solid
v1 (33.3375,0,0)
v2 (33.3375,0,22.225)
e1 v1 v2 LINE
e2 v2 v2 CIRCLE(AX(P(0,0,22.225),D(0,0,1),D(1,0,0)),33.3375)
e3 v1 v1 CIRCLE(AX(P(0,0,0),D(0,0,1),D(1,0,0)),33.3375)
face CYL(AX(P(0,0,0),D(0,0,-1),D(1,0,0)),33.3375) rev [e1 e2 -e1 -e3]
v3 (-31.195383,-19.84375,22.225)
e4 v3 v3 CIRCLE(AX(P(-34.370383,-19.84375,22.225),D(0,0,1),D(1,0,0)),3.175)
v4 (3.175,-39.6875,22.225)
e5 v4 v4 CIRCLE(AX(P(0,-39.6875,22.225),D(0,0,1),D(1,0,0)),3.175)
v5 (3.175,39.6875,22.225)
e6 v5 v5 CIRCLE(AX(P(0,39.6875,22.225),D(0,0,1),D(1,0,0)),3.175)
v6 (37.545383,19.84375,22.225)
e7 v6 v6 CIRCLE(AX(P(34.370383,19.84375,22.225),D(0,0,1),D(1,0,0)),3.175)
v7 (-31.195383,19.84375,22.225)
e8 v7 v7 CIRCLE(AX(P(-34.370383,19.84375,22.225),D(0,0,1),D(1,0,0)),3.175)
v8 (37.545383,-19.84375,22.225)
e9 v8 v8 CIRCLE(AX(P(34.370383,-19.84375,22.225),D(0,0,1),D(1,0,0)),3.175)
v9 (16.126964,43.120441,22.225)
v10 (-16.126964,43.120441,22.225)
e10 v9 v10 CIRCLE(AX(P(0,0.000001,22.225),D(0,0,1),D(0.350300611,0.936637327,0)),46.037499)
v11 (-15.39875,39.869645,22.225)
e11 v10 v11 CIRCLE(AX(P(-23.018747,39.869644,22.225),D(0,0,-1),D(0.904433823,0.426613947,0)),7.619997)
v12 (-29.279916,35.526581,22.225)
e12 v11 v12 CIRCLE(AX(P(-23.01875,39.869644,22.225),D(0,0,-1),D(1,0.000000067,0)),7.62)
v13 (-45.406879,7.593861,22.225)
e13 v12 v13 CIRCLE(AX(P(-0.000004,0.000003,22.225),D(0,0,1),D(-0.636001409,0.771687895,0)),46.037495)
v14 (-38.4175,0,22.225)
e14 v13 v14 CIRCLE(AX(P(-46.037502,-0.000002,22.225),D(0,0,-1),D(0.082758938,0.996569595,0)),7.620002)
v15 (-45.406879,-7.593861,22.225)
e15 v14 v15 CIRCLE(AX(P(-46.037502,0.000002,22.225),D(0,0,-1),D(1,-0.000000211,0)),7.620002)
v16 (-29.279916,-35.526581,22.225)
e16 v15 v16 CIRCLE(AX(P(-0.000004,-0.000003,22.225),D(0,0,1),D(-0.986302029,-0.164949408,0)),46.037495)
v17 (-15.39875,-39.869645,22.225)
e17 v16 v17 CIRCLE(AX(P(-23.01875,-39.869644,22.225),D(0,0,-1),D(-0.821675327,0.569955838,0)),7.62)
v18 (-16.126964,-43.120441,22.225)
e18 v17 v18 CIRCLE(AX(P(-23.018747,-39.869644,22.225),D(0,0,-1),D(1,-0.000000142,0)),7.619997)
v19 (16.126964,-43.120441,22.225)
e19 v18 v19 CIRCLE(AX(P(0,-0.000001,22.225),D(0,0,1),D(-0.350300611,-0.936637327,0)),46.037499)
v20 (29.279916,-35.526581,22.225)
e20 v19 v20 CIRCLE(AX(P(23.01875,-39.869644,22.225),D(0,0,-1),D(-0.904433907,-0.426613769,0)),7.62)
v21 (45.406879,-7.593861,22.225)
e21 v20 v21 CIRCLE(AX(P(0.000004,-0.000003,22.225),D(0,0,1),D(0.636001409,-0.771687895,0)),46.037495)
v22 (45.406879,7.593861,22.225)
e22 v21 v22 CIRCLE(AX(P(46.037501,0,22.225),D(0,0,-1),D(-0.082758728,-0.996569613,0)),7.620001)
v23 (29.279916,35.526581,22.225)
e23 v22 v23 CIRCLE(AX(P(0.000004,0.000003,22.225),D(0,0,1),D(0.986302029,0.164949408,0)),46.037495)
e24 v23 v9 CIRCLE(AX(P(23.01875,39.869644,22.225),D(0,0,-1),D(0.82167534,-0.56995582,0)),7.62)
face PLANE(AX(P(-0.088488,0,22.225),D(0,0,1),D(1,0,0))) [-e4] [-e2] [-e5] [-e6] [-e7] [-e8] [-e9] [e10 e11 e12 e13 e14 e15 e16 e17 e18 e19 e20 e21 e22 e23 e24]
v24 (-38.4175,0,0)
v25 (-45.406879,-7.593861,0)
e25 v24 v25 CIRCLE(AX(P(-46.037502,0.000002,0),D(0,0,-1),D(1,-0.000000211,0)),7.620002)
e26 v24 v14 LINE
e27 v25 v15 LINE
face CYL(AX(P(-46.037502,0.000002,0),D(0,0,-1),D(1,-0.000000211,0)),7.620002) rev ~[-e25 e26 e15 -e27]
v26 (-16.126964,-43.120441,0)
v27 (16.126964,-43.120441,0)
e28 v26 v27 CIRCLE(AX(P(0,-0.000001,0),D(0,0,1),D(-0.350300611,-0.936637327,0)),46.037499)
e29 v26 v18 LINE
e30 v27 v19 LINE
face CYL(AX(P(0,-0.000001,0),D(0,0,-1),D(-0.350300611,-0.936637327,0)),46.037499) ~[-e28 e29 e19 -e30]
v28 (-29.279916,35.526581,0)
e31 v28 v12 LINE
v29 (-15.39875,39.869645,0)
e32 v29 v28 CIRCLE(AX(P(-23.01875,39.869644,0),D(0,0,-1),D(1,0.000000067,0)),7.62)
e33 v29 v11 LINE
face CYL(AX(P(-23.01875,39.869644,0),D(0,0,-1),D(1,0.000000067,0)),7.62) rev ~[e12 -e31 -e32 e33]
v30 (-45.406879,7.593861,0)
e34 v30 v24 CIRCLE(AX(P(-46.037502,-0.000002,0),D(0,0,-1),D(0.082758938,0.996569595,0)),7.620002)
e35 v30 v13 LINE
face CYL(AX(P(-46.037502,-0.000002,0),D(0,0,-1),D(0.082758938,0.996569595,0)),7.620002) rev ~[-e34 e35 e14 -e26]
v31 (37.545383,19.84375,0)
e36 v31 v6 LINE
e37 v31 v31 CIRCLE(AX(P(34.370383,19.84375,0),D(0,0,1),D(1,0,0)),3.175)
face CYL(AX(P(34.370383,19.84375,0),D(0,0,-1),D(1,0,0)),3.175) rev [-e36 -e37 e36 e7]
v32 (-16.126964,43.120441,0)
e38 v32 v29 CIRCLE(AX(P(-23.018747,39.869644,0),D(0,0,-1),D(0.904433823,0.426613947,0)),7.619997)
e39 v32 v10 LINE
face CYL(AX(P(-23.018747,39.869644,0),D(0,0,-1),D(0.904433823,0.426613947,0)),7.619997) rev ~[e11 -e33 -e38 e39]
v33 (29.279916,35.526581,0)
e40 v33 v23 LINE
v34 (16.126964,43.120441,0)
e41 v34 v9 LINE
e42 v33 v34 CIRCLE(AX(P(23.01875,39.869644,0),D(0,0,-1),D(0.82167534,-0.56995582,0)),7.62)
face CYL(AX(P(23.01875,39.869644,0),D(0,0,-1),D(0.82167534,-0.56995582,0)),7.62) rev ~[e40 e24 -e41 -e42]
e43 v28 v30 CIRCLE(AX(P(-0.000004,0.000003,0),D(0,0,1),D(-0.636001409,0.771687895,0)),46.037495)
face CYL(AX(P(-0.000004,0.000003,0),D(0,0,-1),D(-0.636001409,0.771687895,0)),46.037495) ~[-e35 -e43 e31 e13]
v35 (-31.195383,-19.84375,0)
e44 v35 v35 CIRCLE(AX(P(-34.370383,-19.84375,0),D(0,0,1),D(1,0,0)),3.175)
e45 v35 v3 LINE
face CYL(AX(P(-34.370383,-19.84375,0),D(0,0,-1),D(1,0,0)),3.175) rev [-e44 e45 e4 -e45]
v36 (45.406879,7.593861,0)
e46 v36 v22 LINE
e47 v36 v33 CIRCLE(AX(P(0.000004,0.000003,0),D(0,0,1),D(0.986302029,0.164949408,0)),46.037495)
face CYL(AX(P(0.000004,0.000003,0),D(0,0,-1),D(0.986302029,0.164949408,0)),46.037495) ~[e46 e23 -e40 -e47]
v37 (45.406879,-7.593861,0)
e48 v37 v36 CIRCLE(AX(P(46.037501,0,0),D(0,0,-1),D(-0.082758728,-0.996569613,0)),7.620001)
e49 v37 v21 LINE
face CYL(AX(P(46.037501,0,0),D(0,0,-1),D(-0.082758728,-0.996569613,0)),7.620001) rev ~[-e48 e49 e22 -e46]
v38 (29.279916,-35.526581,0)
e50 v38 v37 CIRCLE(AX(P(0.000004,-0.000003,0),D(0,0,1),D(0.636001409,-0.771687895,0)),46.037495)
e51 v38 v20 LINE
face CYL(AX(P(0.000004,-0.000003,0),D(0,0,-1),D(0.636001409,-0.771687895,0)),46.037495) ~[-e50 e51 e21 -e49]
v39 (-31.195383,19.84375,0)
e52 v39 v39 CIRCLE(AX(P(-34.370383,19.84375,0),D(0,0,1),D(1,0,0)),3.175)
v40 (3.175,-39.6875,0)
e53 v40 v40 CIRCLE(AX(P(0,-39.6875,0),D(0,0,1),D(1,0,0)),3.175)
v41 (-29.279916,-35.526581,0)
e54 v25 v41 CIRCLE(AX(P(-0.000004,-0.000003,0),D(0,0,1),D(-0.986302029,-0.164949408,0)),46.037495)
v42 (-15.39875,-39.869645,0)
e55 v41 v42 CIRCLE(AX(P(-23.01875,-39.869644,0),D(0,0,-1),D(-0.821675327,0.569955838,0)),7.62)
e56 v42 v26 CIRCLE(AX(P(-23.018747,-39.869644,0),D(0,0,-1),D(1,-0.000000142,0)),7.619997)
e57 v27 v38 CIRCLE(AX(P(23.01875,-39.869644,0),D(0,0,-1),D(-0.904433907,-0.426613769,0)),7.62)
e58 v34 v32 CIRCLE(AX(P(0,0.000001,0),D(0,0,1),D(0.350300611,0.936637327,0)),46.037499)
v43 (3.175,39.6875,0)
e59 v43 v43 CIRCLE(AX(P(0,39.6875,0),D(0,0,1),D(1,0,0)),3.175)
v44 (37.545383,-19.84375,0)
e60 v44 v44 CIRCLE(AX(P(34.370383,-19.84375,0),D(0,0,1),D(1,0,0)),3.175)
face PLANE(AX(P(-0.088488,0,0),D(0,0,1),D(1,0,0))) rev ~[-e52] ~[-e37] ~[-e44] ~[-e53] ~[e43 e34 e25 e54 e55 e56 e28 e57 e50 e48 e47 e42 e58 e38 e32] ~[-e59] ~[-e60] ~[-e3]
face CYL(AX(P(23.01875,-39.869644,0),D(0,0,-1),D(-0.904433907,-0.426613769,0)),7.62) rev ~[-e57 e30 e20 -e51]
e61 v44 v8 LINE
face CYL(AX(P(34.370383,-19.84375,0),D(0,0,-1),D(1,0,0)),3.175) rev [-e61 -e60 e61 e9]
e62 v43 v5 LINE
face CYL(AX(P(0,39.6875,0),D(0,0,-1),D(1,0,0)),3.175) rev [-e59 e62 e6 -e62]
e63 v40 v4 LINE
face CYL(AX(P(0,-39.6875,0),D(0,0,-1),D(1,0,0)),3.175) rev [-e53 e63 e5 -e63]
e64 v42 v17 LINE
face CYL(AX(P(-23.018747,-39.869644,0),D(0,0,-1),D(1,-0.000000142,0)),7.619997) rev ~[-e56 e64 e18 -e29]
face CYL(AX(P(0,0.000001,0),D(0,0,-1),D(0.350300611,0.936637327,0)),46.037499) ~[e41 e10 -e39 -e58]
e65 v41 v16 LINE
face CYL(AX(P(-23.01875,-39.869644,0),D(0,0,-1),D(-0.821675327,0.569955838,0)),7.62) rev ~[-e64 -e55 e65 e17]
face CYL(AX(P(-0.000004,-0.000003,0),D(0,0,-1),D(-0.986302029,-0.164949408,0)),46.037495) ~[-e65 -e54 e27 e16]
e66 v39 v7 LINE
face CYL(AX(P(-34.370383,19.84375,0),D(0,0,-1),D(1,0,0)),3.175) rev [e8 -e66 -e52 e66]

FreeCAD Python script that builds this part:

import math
import FreeCAD as App
import Part
import Sketcher

V = App.Vector
Q = App.Units.Quantity

doc = App.newDocument("Part")
body = doc.addObject("PartDesign::Body", "Body")

# Sketch on XY plane
sketch1 = body.newObject("Sketcher::SketchObject", "Sketch")
sketch1.AttachmentSupport = (doc.getObject("XY_Plane"), [""])
sketch1.MapMode = "FlatFace"
sketch1.addGeometry([
    Part.ArcOfCircle(Part.Circle(V(46, 0, 0), V(0, 0, 1), 7.6), math.radians(95), math.radians(265)),  # 0
    Part.ArcOfCircle(Part.Circle(V(0, 0, 0), V(0, 0, 1), 46), math.radians(9), math.radians(51)),  # 1
    Part.ArcOfCircle(Part.Circle(V(23, 39.9, 0), V(0, 0, 1), 7.6), math.radians(155), math.radians(325)),  # 2
    Part.ArcOfCircle(Part.Circle(V(0, 0, 0), V(0, 0, 1), 46), math.radians(69), math.radians(111)),  # 3
    Part.ArcOfCircle(Part.Circle(V(-23, 39.9, 0), V(0, 0, 1), 7.6), math.radians(0), math.radians(25)),  # 4
    Part.ArcOfCircle(Part.Circle(V(-23, 39.9, 0), V(0, 0, 1), 7.6), math.radians(-145), math.radians(0)),  # 5
    Part.ArcOfCircle(Part.Circle(V(0, 0, 0), V(0, 0, 1), 46), math.radians(129), math.radians(171)),  # 6
    Part.ArcOfCircle(Part.Circle(V(-46, 0, 0), V(0, 0, 1), 7.6), math.radians(0), math.radians(85)),  # 7
    Part.ArcOfCircle(Part.Circle(V(-46, 0, 0), V(0, 0, 1), 7.6), math.radians(-85), math.radians(0)),  # 8
    Part.ArcOfCircle(Part.Circle(V(0, 0, 0), V(0, 0, 1), 46), math.radians(-171), math.radians(-129)),  # 9
    Part.ArcOfCircle(Part.Circle(V(-23, -39.9, 0), V(0, 0, 1), 7.6), math.radians(0), math.radians(145)),  # 10
    Part.ArcOfCircle(Part.Circle(V(-23, -39.9, 0), V(0, 0, 1), 7.6), math.radians(-25), math.radians(0)),  # 11
    Part.ArcOfCircle(Part.Circle(V(0, 0, 0), V(0, 0, 1), 46), math.radians(-111), math.radians(-69)),  # 12
    Part.ArcOfCircle(Part.Circle(V(23, -39.9, 0), V(0, 0, 1), 7.6), math.radians(35), math.radians(205)),  # 13
    Part.ArcOfCircle(Part.Circle(V(0, 0, 0), V(0, 0, 1), 46), math.radians(-51), math.radians(-9)),  # 14
    Part.Circle(V(-34.4, -19.8, 0), V(0, 0, 1), 3.2),  # 15
    Part.Circle(V(0, -39.7, 0), V(0, 0, 1), 3.2),  # 16
    Part.Circle(V(34.4, -19.8, 0), V(0, 0, 1), 3.2),  # 17
    Part.Circle(V(-34.4, 19.8, 0), V(0, 0, 1), 3.2),  # 18
    Part.Circle(V(0, 0, 0), V(0, 0, 1), 33.3),  # 19
    Part.Circle(V(34.4, 19.8, 0), V(0, 0, 1), 3.2),  # 20
    Part.Circle(V(0, 39.7, 0), V(0, 0, 1), 3.2),  # 21
], False)
sketch1.addConstraint([
    Sketcher.Constraint("Coincident", 0, 1, 1, 1),
    Sketcher.Constraint("Coincident", 1, 2, 2, 2),
    Sketcher.Constraint("Coincident", 2, 1, 3, 1),
    Sketcher.Constraint("Coincident", 3, 2, 4, 2),
    Sketcher.Constraint("Tangent", 4, 1, 5, 2),
    Sketcher.Constraint("Coincident", 5, 1, 6, 1),
    Sketcher.Constraint("Coincident", 6, 2, 7, 2),
    Sketcher.Constraint("Tangent", 7, 1, 8, 2),
    Sketcher.Constraint("Coincident", 8, 1, 9, 1),
    Sketcher.Constraint("Coincident", 9, 2, 10, 2),
    Sketcher.Constraint("Tangent", 10, 1, 11, 2),
    Sketcher.Constraint("Coincident", 11, 1, 12, 1),
    Sketcher.Constraint("Coincident", 12, 2, 13, 2),
    Sketcher.Constraint("Coincident", 13, 1, 14, 1),
    Sketcher.Constraint("Coincident", 14, 2, 0, 2),
    Sketcher.Constraint("Coincident", 1, 3, -1, 1),
    Sketcher.Constraint("Coincident", 3, 3, -1, 1),
    Sketcher.Constraint("Coincident", 6, 3, -1, 1),
    Sketcher.Constraint("Coincident", 9, 3, -1, 1),
    Sketcher.Constraint("Coincident", 12, 3, -1, 1),
    Sketcher.Constraint("Coincident", 14, 3, -1, 1),
    Sketcher.Constraint("Coincident", 19, 3, -1, 1),
    Sketcher.Constraint("Equal", 0, 2),
    Sketcher.Constraint("Equal", 2, 5),
    Sketcher.Constraint("Equal", 1, 6),
    Sketcher.Constraint("Equal", 0, 7),
    Sketcher.Constraint("Equal", 7, 8),
    Sketcher.Constraint("Equal", 6, 9),
    Sketcher.Constraint("Equal", 5, 10),
    Sketcher.Constraint("Equal", 4, 11),
    Sketcher.Constraint("Equal", 3, 12),
    Sketcher.Constraint("Equal", 10, 13),
    Sketcher.Constraint("Equal", 9, 14),
    Sketcher.Constraint("Equal", 15, 16),
    Sketcher.Constraint("Equal", 16, 17),
    Sketcher.Constraint("Equal", 17, 18),
    Sketcher.Constraint("Equal", 18, 20),
    Sketcher.Constraint("Equal", 20, 21),
    Sketcher.Constraint("Symmetric", 0, 3, 7, 3, -1, 1),
    Sketcher.Constraint("Symmetric", 2, 3, 10, 3, -1, 1),
    Sketcher.Constraint("Symmetric", 4, 3, 13, 3, -1, 1),
    Sketcher.Constraint("Symmetric", 17, 3, 18, 3, -1, 1),
    Sketcher.Constraint("Symmetric", 15, 3, 20, 3, -1, 1),
    Sketcher.Constraint("Symmetric", 16, 3, 21, 3, -1, 1),
    Sketcher.Constraint("Symmetric", 2, 3, 4, 3, -2),
    Sketcher.Constraint("Symmetric", 15, 3, 17, 3, -2),
    Sketcher.Constraint("Symmetric", 4, 1, 10, 1, -1),
    Sketcher.Constraint("PointOnObject", 0, 3, -1),
    Sketcher.Constraint("PointOnObject", 16, 3, -2),
    Sketcher.Constraint("PointOnObject", 7, 1, -1),
    Sketcher.Constraint("Horizontal", 5, 3, 4, 1),
    Sketcher.Constraint("Radius", 0, Q("0.3 in")),
    Sketcher.Constraint("Diameter", 15, Q("0.25 in")),
    Sketcher.Constraint("Diameter", 19, Q("2.625 in")),
    Sketcher.Constraint("Radius", 3, Q("1.8125 in")),
    Sketcher.Constraint("Radius", 1, Q("1.8124998 in")),
    Sketcher.Constraint("DistanceX", -1, 1, 0, 3, Q("1.8125 in")),
    Sketcher.Constraint("DistanceX", -1, 1, 2, 3, Q("0.90625 in")),
    Sketcher.Constraint("DistanceY", 15, 3, -1, 1, Q("0.78125 in")),
    Sketcher.Constraint("DistanceY", 16, 3, -1, 1, Q("1.5625 in")),
    Sketcher.Constraint("DistanceY", 0, 1, 2, 3, Q("1.2707001 in")),
    Sketcher.Constraint("DistanceX", 7, 3, 15, 3, Q("11.667119 mm")),
])
pad1 = body.newObject("PartDesign::Pad", "Pad")
pad1.Profile = sketch1
pad1.Length = Q("0.875 in")

doc.recompute()
